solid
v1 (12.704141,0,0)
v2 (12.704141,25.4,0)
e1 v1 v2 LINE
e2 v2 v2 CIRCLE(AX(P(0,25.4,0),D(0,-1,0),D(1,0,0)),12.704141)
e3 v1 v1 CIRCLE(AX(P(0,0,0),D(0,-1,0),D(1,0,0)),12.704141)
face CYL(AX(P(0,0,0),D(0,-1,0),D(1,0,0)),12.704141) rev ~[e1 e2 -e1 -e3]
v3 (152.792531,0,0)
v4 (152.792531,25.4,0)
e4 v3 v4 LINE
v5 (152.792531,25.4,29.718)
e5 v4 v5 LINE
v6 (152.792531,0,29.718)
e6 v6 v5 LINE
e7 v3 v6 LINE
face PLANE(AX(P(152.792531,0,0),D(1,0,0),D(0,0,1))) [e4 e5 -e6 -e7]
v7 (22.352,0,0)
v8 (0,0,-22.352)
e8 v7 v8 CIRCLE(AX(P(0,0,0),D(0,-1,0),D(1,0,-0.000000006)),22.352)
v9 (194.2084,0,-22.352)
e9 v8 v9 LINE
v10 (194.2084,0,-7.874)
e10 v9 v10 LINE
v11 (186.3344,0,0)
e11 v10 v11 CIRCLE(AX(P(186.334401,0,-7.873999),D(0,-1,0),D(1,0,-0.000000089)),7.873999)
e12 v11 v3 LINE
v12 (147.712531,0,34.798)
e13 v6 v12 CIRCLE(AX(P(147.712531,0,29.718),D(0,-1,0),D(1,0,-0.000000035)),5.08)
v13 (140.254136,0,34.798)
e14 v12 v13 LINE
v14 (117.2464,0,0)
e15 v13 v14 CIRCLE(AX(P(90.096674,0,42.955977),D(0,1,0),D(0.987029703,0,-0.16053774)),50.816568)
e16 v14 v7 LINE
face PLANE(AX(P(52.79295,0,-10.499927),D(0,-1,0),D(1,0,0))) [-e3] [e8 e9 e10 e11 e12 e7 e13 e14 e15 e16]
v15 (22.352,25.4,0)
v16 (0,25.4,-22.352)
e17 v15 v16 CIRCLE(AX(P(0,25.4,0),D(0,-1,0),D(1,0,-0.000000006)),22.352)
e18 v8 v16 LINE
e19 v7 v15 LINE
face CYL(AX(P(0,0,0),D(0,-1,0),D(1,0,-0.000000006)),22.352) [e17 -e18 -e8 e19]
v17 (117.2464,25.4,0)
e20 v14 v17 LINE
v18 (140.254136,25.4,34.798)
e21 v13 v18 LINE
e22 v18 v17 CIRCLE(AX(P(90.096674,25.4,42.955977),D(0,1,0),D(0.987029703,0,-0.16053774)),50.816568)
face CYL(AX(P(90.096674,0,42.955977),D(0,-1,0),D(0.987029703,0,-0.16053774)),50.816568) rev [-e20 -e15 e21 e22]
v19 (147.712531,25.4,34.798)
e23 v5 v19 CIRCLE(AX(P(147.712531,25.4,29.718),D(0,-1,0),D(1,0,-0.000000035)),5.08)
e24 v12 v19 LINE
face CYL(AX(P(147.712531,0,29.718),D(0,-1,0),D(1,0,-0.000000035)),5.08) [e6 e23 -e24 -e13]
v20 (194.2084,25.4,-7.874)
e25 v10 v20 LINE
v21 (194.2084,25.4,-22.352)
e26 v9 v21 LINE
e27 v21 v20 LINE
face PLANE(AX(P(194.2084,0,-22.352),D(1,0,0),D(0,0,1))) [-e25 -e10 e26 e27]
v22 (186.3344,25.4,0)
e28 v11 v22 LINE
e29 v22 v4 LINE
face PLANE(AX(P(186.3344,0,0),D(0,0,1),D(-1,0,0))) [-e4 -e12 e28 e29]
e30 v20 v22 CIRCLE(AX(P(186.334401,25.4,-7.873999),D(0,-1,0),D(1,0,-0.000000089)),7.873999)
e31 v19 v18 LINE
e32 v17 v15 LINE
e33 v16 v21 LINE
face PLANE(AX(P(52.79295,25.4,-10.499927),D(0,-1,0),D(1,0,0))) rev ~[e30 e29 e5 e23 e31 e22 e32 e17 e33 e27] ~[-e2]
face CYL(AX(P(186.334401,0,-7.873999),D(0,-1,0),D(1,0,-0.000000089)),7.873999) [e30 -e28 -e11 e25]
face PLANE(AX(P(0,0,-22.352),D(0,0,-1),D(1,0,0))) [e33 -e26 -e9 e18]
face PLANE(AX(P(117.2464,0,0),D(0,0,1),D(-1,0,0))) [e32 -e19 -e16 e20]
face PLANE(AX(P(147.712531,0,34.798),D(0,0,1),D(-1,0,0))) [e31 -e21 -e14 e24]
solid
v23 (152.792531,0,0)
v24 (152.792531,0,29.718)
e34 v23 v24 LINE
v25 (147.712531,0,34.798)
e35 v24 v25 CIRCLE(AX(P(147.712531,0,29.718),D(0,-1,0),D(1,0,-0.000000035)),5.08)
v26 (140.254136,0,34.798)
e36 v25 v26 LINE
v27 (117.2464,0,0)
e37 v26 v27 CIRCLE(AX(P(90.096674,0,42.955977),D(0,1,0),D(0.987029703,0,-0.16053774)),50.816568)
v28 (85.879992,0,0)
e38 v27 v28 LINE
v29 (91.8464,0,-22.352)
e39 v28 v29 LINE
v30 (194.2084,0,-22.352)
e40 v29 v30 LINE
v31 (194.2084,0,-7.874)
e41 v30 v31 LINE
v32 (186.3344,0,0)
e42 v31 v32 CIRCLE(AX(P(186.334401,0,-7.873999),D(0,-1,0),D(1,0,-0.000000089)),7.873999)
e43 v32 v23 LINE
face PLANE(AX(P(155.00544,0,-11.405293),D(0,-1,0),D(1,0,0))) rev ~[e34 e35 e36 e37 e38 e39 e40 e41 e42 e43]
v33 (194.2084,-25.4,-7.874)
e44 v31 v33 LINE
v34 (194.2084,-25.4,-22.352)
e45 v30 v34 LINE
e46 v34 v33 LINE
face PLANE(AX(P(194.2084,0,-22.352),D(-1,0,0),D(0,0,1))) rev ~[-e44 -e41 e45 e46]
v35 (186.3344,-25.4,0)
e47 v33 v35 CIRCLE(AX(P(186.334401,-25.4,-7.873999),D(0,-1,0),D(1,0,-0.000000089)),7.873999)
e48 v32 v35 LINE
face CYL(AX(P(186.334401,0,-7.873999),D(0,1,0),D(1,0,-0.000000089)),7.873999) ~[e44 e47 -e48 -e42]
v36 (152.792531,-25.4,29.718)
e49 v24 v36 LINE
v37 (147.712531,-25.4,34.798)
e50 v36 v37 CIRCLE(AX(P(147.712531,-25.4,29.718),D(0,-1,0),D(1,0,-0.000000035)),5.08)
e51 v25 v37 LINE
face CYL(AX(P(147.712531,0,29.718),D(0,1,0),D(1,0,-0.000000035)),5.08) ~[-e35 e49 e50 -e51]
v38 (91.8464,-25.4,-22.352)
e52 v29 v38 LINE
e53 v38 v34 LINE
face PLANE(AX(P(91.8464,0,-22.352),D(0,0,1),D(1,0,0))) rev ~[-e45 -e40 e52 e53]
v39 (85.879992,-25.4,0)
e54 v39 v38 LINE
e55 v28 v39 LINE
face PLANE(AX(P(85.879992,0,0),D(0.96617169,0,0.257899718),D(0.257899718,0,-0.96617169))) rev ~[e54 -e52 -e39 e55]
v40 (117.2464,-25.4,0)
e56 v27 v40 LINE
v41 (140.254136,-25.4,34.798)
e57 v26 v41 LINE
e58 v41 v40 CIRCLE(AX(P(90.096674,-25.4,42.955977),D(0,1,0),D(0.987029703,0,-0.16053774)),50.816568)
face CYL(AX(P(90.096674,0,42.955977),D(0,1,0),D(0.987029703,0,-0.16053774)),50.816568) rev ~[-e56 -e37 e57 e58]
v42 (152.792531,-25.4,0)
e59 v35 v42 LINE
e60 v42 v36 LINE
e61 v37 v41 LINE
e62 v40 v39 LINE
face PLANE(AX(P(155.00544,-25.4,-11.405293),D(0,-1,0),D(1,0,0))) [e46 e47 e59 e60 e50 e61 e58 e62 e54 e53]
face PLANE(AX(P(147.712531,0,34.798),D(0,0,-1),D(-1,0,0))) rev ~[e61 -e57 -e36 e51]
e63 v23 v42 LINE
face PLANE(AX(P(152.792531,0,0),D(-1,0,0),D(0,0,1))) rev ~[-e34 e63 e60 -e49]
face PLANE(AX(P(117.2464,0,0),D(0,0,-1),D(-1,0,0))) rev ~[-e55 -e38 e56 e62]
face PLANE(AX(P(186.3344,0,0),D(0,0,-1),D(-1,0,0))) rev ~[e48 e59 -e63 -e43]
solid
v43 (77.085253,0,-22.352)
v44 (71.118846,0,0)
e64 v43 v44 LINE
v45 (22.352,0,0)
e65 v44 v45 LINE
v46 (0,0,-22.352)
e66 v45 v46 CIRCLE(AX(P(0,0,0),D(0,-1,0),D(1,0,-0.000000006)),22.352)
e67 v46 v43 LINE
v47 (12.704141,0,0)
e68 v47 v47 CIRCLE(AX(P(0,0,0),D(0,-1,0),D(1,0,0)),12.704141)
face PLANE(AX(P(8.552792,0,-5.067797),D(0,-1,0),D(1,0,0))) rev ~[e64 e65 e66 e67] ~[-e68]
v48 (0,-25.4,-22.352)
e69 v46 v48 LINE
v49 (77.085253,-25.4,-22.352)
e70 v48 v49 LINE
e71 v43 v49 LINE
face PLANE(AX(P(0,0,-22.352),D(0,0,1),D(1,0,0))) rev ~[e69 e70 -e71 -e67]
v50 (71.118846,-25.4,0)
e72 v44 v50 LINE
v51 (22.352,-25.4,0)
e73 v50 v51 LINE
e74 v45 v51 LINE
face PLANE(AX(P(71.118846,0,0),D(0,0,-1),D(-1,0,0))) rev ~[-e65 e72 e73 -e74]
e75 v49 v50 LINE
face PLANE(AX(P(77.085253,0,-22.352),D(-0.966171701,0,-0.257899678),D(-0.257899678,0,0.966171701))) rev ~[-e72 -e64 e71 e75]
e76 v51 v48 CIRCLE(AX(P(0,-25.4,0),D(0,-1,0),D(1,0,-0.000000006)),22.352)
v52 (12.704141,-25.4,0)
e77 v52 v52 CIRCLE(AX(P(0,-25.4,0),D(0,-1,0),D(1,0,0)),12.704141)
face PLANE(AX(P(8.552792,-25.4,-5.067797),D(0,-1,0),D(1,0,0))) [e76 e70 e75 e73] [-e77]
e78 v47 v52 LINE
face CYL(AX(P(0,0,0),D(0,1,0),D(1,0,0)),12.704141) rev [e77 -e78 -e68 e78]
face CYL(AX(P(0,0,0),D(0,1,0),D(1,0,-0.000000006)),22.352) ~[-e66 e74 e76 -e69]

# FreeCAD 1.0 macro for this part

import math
import FreeCAD as App
import Part
import Sketcher
Q = App.Units.Quantity

doc = App.newDocument("Part")
body = doc.addObject("PartDesign::Body", "Body")
body.AllowCompound = True

sketch1 = body.newObject("Sketcher::SketchObject", "Sketch")
sketch1.AttachmentSupport = (doc.getObject("XZ_Plane"), [""])
sketch1.MapMode = "FlatFace"
sketch1.addGeometry(Part.ArcOfCircle(Part.Circle(App.Vector(0, 0, 0), App.Vector(0, 0, 1), 22), math.radians(0), math.radians(270)), False)
sketch1.addGeometry(Part.LineSegment(App.Vector(0, -22, 0), App.Vector(77, -22, 0)), False)
sketch1.addGeometry(Part.LineSegment(App.Vector(77, -22, 0), App.Vector(71, 0, 0)), False)
sketch1.addGeometry(Part.LineSegment(App.Vector(71, 0, 0), App.Vector(22, 0, 0)), False)
sketch1.addGeometry(Part.Circle(App.Vector(0, 0, 0), App.Vector(0, 0, 1), 13), False)
sketch1.addGeometry(Part.LineSegment(App.Vector(194, -22, 0), App.Vector(194, -8, 0)), False)
sketch1.addGeometry(Part.ArcOfCircle(Part.Circle(App.Vector(186, -8, 0), App.Vector(0, 0, 1), 8), math.radians(0), math.radians(90)), False)
sketch1.addGeometry(Part.LineSegment(App.Vector(186, 0, 0), App.Vector(153, 0, 0)), False)
sketch1.addGeometry(Part.LineSegment(App.Vector(153, 0, 0), App.Vector(153, 30, 0)), False)
sketch1.addGeometry(Part.ArcOfCircle(Part.Circle(App.Vector(148, 30, 0), App.Vector(0, 0, 1), 5), math.radians(0), math.radians(90)), False)
sketch1.addGeometry(Part.LineSegment(App.Vector(148, 35, 0), App.Vector(140, 35, 0)), False)
sketch1.addGeometry(Part.ArcOfCircle(Part.Circle(App.Vector(90, 43, 0), App.Vector(0, 0, 1), 51), math.radians(-58), math.radians(-9)), False)
sketch1.addGeometry(Part.LineSegment(App.Vector(117, 0, 0), App.Vector(86, 0, 0)), False)
sketch1.addGeometry(Part.LineSegment(App.Vector(86, 0, 0), App.Vector(92, -22, 0)), False)
sketch1.addGeometry(Part.LineSegment(App.Vector(92, -22, 0), App.Vector(194, -22, 0)), False)
sketch1.addConstraint(Sketcher.Constraint("Tangent", 0, 2, 1, 1))
sketch1.addConstraint(Sketcher.Constraint("Coincident", 1, 2, 2, 1))
sketch1.addConstraint(Sketcher.Constraint("Coincident", 2, 2, 3, 1))
sketch1.addConstraint(Sketcher.Constraint("Coincident", 3, 2, 0, 1))
sketch1.addConstraint(Sketcher.Constraint("Tangent", 5, 2, 6, 1))
sketch1.addConstraint(Sketcher.Constraint("Tangent", 6, 2, 7, 1))
sketch1.addConstraint(Sketcher.Constraint("Coincident", 7, 2, 8, 1))
sketch1.addConstraint(Sketcher.Constraint("Tangent", 8, 2, 9, 1))
sketch1.addConstraint(Sketcher.Constraint("Tangent", 9, 2, 10, 1))
sketch1.addConstraint(Sketcher.Constraint("Coincident", 10, 2, 11, 2))
sketch1.addConstraint(Sketcher.Constraint("Coincident", 11, 1, 12, 1))
sketch1.addConstraint(Sketcher.Constraint("Coincident", 12, 2, 13, 1))
sketch1.addConstraint(Sketcher.Constraint("Coincident", 13, 2, 14, 1))
sketch1.addConstraint(Sketcher.Constraint("Coincident", 14, 2, 5, 1))
sketch1.addConstraint(Sketcher.Constraint("Horizontal", 1))
sketch1.addConstraint(Sketcher.Constraint("Horizontal", 3))
sketch1.addConstraint(Sketcher.Constraint("Vertical", 5))
sketch1.addConstraint(Sketcher.Constraint("Horizontal", 7))
sketch1.addConstraint(Sketcher.Constraint("Vertical", 8))
sketch1.addConstraint(Sketcher.Constraint("Horizontal", 10))
sketch1.addConstraint(Sketcher.Constraint("Horizontal", 12))
sketch1.addConstraint(Sketcher.Constraint("Horizontal", 14))
sketch1.addConstraint(Sketcher.Constraint("Coincident", 0, 3, -1, 1))
sketch1.addConstraint(Sketcher.Constraint("Coincident", 4, 3, -1, 1))
sketch1.addConstraint(Sketcher.Constraint("PointOnObject", 2, 2, -1))
sketch1.addConstraint(Sketcher.Constraint("PointOnObject", 6, 2, -1))
sketch1.addConstraint(Sketcher.Constraint("PointOnObject", 11, 1, -1))
sketch1.addConstraint(Sketcher.Constraint("Parallel", 2, 13))
sketch1.addConstraint(Sketcher.Constraint("Horizontal", 1, 2, 13, 2))
sketch1.addConstraint(Sketcher.Constraint("Radius", 9, Q("0.2 in")))
sketch1.addConstraint(Sketcher.Constraint("Radius", 0, Q("0.88 in")))
sketch1.addConstraint(Sketcher.Constraint("Radius", 6, Q("0.31 in")))
sketch1.addConstraint(Sketcher.Constraint("DistanceX", 13, 2, 11, 1, Q("1 in")))
sketch1.addConstraint(Sketcher.Constraint("DistanceX", 14, 1, 14, 2, Q("4.03 in")))
sketch1.addConstraint(Sketcher.Constraint("DistanceY", 8, 1, 8, 2, Q("1.17 in")))
sketch1.addConstraint(Sketcher.Constraint("Diameter", 4, 25.408282))
sketch1.addConstraint(Sketcher.Constraint("DistanceX", -1, 1, 6, 3, Q("7.336 in")))
sketch1.addConstraint(Sketcher.Constraint("Radius", 11, 50.816568))
sketch1.addConstraint(Sketcher.Constraint("DistanceX", 7, 2, 7, 1, 33.541869))
sketch1.addConstraint(Sketcher.Constraint("DistanceX", 1, 1, 1, 2, 77.085253))
sketch1.addConstraint(Sketcher.Constraint("DistanceX", 3, 2, 3, 1, 48.766846))
sketch1.addConstraint(Sketcher.Constraint("DistanceX", 10, 2, 10, 1, 7.458395))
pad1 = body.newObject("PartDesign::Pad", "Pad")
pad1.Profile = sketch1
pad1.Length = Q("1 in")
body2 = doc.addObject("PartDesign::Body", "Body001")

sketch2 = body2.newObject("Sketcher::SketchObject", "Sketch001")
sketch2.AttachmentSupport = (doc.getObject("XZ_Plane001"), [""])
sketch2.MapMode = "FlatFace"
sketch2.addGeometry(Part.ArcOfCircle(Part.Circle(App.Vector(0, 0, 0), App.Vector(0, 0, 1), 22), math.radians(0), math.radians(270)), False)
sketch2.addGeometry(Part.LineSegment(App.Vector(0, -22, 0), App.Vector(194, -22, 0)), False)
sketch2.addGeometry(Part.LineSegment(App.Vector(194, -22, 0), App.Vector(194, -8, 0)), False)
sketch2.addGeometry(Part.ArcOfCircle(Part.Circle(App.Vector(186, -8, 0), App.Vector(0, 0, 1), 8), math.radians(0), math.radians(90)), False)
sketch2.addGeometry(Part.LineSegment(App.Vector(186, 0, 0), App.Vector(153, 0, 0)), False)
sketch2.addGeometry(Part.LineSegment(App.Vector(153, 0, 0), App.Vector(153, 30, 0)), False)
sketch2.addGeometry(Part.ArcOfCircle(Part.Circle(App.Vector(148, 30, 0), App.Vector(0, 0, 1), 5), math.radians(0), math.radians(90)), False)
sketch2.addGeometry(Part.LineSegment(App.Vector(148, 35, 0), App.Vector(140, 35, 0)), False)
sketch2.addGeometry(Part.ArcOfCircle(Part.Circle(App.Vector(90, 43, 0), App.Vector(0, 0, 1), 51), math.radians(-58), math.radians(-9)), False)
sketch2.addGeometry(Part.LineSegment(App.Vector(117, 0, 0), App.Vector(22, 0, 0)), False)
sketch2.addGeometry(Part.Circle(App.Vector(0, 0, 0), App.Vector(0, 0, 1), 13), False)
sketch2.addConstraint(Sketcher.Constraint("Tangent", 0, 2, 1, 1))
sketch2.addConstraint(Sketcher.Constraint("Coincident", 1, 2, 2, 1))
sketch2.addConstraint(Sketcher.Constraint("Tangent", 2, 2, 3, 1))
sketch2.addConstraint(Sketcher.Constraint("Tangent", 3, 2, 4, 1))
sketch2.addConstraint(Sketcher.Constraint("Coincident", 4, 2, 5, 1))
sketch2.addConstraint(Sketcher.Constraint("Tangent", 5, 2, 6, 1))
sketch2.addConstraint(Sketcher.Constraint("Tangent", 6, 2, 7, 1))
sketch2.addConstraint(Sketcher.Constraint("Coincident", 7, 2, 8, 2))
sketch2.addConstraint(Sketcher.Constraint("Coincident", 8, 1, 9, 1))
sketch2.addConstraint(Sketcher.Constraint("Coincident", 9, 2, 0, 1))
sketch2.addConstraint(Sketcher.Constraint("Horizontal", 1))
sketch2.addConstraint(Sketcher.Constraint("Vertical", 2))
sketch2.addConstraint(Sketcher.Constraint("Horizontal", 4))
sketch2.addConstraint(Sketcher.Constraint("Vertical", 5))
sketch2.addConstraint(Sketcher.Constraint("Horizontal", 7))
sketch2.addConstraint(Sketcher.Constraint("Horizontal", 9))
sketch2.addConstraint(Sketcher.Constraint("Coincident", 0, 3, -1, 1))
sketch2.addConstraint(Sketcher.Constraint("Coincident", 10, 3, -1, 1))
sketch2.addConstraint(Sketcher.Constraint("PointOnObject", 3, 2, -1))
sketch2.addConstraint(Sketcher.Constraint("PointOnObject", 8, 1, -1))
sketch2.addConstraint(Sketcher.Constraint("Radius", 6, Q("0.2 in")))
sketch2.addConstraint(Sketcher.Constraint("Radius", 0, Q("0.88 in")))
sketch2.addConstraint(Sketcher.Constraint("Radius", 3, Q("0.31 in")))
sketch2.addConstraint(Sketcher.Constraint("DistanceY", 5, 1, 5, 2, Q("1.17 in")))
sketch2.addConstraint(Sketcher.Constraint("DistanceX", 1, 1, 1, 2, Q("7.646 in")))
sketch2.addConstraint(Sketcher.Constraint("DistanceX", 9, 2, 9, 1, Q("3.736 in")))
sketch2.addConstraint(Sketcher.Constraint("Diameter", 10, 25.408282))
sketch2.addConstraint(Sketcher.Constraint("Radius", 8, 50.816568))
sketch2.addConstraint(Sketcher.Constraint("DistanceX", 4, 2, 4, 1, 33.541869))
sketch2.addConstraint(Sketcher.Constraint("DistanceX", 7, 2, 7, 1, 7.458395))
pad2 = body2.newObject("PartDesign::Pad", "Pad001")
pad2.Profile = sketch2
pad2.Length = Q("1 in")
pad2.Reversed = True

doc.recompute()
